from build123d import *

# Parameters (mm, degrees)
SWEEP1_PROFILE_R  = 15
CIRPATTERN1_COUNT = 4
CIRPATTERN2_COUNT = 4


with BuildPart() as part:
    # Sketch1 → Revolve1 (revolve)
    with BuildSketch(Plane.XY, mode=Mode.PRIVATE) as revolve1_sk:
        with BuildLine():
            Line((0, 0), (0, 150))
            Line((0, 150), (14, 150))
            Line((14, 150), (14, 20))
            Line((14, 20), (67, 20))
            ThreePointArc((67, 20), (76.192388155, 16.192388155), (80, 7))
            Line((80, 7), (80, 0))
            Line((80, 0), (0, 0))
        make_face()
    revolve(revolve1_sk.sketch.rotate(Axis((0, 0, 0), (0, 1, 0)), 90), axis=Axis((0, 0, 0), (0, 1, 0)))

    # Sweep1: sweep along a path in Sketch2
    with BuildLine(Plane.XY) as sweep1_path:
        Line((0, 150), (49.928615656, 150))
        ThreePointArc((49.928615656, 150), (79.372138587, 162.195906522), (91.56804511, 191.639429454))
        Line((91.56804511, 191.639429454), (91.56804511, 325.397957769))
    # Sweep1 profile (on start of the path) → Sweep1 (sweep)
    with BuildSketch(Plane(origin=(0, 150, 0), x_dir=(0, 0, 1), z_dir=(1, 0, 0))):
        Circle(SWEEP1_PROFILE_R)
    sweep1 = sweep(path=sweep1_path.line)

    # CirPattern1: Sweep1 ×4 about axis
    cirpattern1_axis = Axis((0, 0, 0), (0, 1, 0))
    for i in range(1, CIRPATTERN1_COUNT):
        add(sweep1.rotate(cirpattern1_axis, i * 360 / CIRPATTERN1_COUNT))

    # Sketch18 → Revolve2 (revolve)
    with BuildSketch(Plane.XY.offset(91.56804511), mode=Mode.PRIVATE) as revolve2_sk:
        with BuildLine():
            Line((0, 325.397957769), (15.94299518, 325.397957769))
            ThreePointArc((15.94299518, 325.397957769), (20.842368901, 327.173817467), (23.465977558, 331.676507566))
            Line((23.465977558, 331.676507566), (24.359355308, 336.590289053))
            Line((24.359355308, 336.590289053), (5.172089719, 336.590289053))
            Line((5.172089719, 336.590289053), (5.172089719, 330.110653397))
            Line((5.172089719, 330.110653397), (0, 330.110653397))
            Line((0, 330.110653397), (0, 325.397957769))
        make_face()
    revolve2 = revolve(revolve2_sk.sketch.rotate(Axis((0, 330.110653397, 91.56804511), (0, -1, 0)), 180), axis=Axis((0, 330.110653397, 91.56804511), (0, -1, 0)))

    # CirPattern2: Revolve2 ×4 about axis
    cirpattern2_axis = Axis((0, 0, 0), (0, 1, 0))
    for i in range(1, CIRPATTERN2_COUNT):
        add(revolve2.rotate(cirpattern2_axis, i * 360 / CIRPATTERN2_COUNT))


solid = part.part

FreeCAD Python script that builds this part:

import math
import FreeCAD as App
import Part
import Sketcher

V = App.Vector
Q = App.Units.Quantity

doc = App.newDocument("Part")
body = doc.addObject("PartDesign::Body", "Body")

sketch1 = body.newObject("Sketcher::SketchObject", "Sketch")
sketch1.AttachmentSupport = (doc.getObject("XY_Plane"), [""])
sketch1.MapMode = "FlatFace"
sketch1.addGeometry(Part.LineSegment(V(0, 150, 0), V(0, 0, 0)), False)
sketch1.addGeometry(Part.LineSegment(V(0, 0, 0), V(80, 0, 0)), False)
sketch1.addGeometry(Part.LineSegment(V(80, 0, 0), V(80, 7, 0)), False)
sketch1.addGeometry(Part.ArcOfCircle(Part.Circle(V(67, 7, 0), V(0, 0, 1), 13), math.radians(0), math.radians(90)), False)
sketch1.addGeometry(Part.LineSegment(V(67, 20, 0), V(14, 20, 0)), False)
sketch1.addGeometry(Part.LineSegment(V(14, 20, 0), V(14, 150, 0)), False)
sketch1.addGeometry(Part.LineSegment(V(14, 150, 0), V(0, 150, 0)), False)
sketch1.addConstraint(Sketcher.Constraint("Coincident", 0, 2, 1, 1))
sketch1.addConstraint(Sketcher.Constraint("Coincident", 1, 2, 2, 1))
sketch1.addConstraint(Sketcher.Constraint("Tangent", 2, 2, 3, 1))
sketch1.addConstraint(Sketcher.Constraint("Tangent", 3, 2, 4, 1))
sketch1.addConstraint(Sketcher.Constraint("Coincident", 4, 2, 5, 1))
sketch1.addConstraint(Sketcher.Constraint("Coincident", 5, 2, 6, 1))
sketch1.addConstraint(Sketcher.Constraint("Coincident", 6, 2, 0, 1))
sketch1.addConstraint(Sketcher.Constraint("Vertical", 0))
sketch1.addConstraint(Sketcher.Constraint("Horizontal", 1))
sketch1.addConstraint(Sketcher.Constraint("Vertical", 2))
sketch1.addConstraint(Sketcher.Constraint("Horizontal", 4))
sketch1.addConstraint(Sketcher.Constraint("Vertical", 5))
sketch1.addConstraint(Sketcher.Constraint("Horizontal", 6))
sketch1.addConstraint(Sketcher.Constraint("Coincident", 0, 2, -1, 1))
sketch1.addConstraint(Sketcher.Constraint("Radius", 3, Q("13 mm")))
sketch1.addConstraint(Sketcher.Constraint("DistanceX", 1, 1, 1, 2, Q("80 mm")))
sketch1.addConstraint(Sketcher.Constraint("DistanceX", 4, 2, 4, 1, Q("53 mm")))
sketch1.addConstraint(Sketcher.Constraint("DistanceY", 0, 2, 0, 1, Q("150 mm")))
sketch1.addConstraint(Sketcher.Constraint("DistanceY", 2, 1, 2, 2, Q("7 mm")))
revolution = body.newObject("PartDesign::Revolution", "Revolution")
revolution.Profile = sketch1
revolution.ReferenceAxis = (sketch1, ["V_Axis"])
revolution.Angle = 360

sketch2 = body.newObject("Sketcher::SketchObject", "Sketch001")
sketch2.AttachmentSupport = (doc.getObject("YZ_Plane"), [""])
sketch2.MapMode = "FlatFace"
sketch2.addGeometry(Part.Circle(V(150, 0, 0), V(0, 0, 1), 15), False)
sketch2.addConstraint(Sketcher.Constraint("PointOnObject", 0, 3, -1))
sketch2.addConstraint(Sketcher.Constraint("Diameter", 0, Q("30 mm")))
sketch2.addConstraint(Sketcher.Constraint("DistanceX", -1, 1, 0, 3, Q("150 mm")))

sketch3 = body.newObject("Sketcher::SketchObject", "Sketch002")
sketch3.AttachmentSupport = (doc.getObject("XY_Plane"), [""])
sketch3.MapMode = "FlatFace"
sketch3.addGeometry(Part.LineSegment(V(0, 150, 0), V(49.928616, 150, 0)), False)
sketch3.addGeometry(Part.ArcOfCircle(Part.Circle(V(49.928616, 191.639429, 0), V(0, 0, 1), 41.639429), math.radians(-90), math.radians(0)), False)
sketch3.addGeometry(Part.LineSegment(V(91.568045, 191.639429, 0), V(91.568045, 325.397958, 0)), False)
sketch3.addConstraint(Sketcher.Constraint("Tangent", 0, 2, 1, 1))
sketch3.addConstraint(Sketcher.Constraint("Tangent", 1, 2, 2, 1))
sketch3.addConstraint(Sketcher.Constraint("Horizontal", 0))
sketch3.addConstraint(Sketcher.Constraint("Vertical", 2))
sketch3.addConstraint(Sketcher.Constraint("PointOnObject", 0, 1, -2))
sketch3.addConstraint(Sketcher.Constraint("DistanceY", -1, 1, 0, 1, Q("150 mm")))
sketch3.addConstraint(Sketcher.Constraint("Radius", 1, Q("41.639429 mm")))
sketch3.addConstraint(Sketcher.Constraint("DistanceY", 2, 1, 2, 2, Q("133.758528 mm")))
sketch3.addConstraint(Sketcher.Constraint("DistanceX", 0, 1, 0, 2, Q("49.928616 mm")))
doc.recompute()

additivepipe = body.newObject("PartDesign::AdditivePipe", "AdditivePipe")
additivepipe.Profile = sketch2
additivepipe.Spine = (sketch3, ["Edge1", "Edge2", "Edge3"])
doc.recompute()

polarpattern = body.newObject("PartDesign::PolarPattern", "PolarPattern")
polarpattern.Originals = [additivepipe]
polarpattern.Axis = (doc.getObject("Y_Axis"), [""])
polarpattern.Angle = 360
polarpattern.Occurrences = 4
body.Tip = polarpattern

sketch4 = body.newObject("Sketcher::SketchObject", "Sketch003")
sketch4.AttachmentSupport = (doc.getObject("XY_Plane"), [""])
sketch4.MapMode = "FlatFace"
sketch4.AttachmentOffset = App.Placement(V(0, 0, 91.568045), App.Rotation())
sketch4.addGeometry(Part.LineSegment(V(0, 325.397958, 0), V(15.942995, 325.397958, 0)), False)
sketch4.addGeometry(Part.ArcOfCircle(Part.Circle(V(15.942995, 333.044266, 0), V(0, 0, 1), 7.646308), math.radians(-90), math.radians(-10.304428)), False)
sketch4.addGeometry(Part.LineSegment(V(23.465978, 331.676508, 0), V(24.359355, 336.590289, 0)), False)
sketch4.addGeometry(Part.LineSegment(V(24.359355, 336.590289, 0), V(5.17209, 336.590289, 0)), False)
sketch4.addGeometry(Part.LineSegment(V(5.17209, 336.590289, 0), V(5.17209, 330.110653, 0)), False)
sketch4.addGeometry(Part.LineSegment(V(5.17209, 330.110653, 0), V(0, 330.110653, 0)), False)
sketch4.addGeometry(Part.LineSegment(V(0, 330.110653, 0), V(0, 325.397958, 0)), False)
sketch4.addConstraint(Sketcher.Constraint("Tangent", 0, 2, 1, 1))
sketch4.addConstraint(Sketcher.Constraint("Tangent", 1, 2, 2, 1))
sketch4.addConstraint(Sketcher.Constraint("Coincident", 2, 2, 3, 1))
sketch4.addConstraint(Sketcher.Constraint("Coincident", 3, 2, 4, 1))
sketch4.addConstraint(Sketcher.Constraint("Coincident", 4, 2, 5, 1))
sketch4.addConstraint(Sketcher.Constraint("Coincident", 5, 2, 6, 1))
sketch4.addConstraint(Sketcher.Constraint("Coincident", 6, 2, 0, 1))
sketch4.addConstraint(Sketcher.Constraint("Horizontal", 0))
sketch4.addConstraint(Sketcher.Constraint("Horizontal", 3))
sketch4.addConstraint(Sketcher.Constraint("Vertical", 4))
sketch4.addConstraint(Sketcher.Constraint("Horizontal", 5))
sketch4.addConstraint(Sketcher.Constraint("Vertical", 6))
sketch4.addConstraint(Sketcher.Constraint("PointOnObject", 5, 2, -2))
sketch4.addConstraint(Sketcher.Constraint("Radius", 1, Q("7.646308 mm")))
sketch4.addConstraint(Sketcher.Constraint("DistanceX", 5, 2, 5, 1, Q("5.17209 mm")))
sketch4.addConstraint(Sketcher.Constraint("DistanceX", 0, 1, 0, 2, Q("15.942995 mm")))
sketch4.addConstraint(Sketcher.Constraint("DistanceX", 3, 2, 3, 1, Q("19.187266 mm")))
sketch4.addConstraint(Sketcher.Constraint("DistanceY", 4, 2, 4, 1, Q("6.479636 mm")))
sketch4.addConstraint(Sketcher.Constraint("DistanceY", 6, 2, 6, 1, Q("4.712696 mm")))
sketch4.addConstraint(Sketcher.Constraint("DistanceY", -1, 1, 2, 2, Q("336.590289 mm")))
revolution2 = body.newObject("PartDesign::Revolution", "Revolution001")
revolution2.Profile = sketch4
revolution2.ReferenceAxis = (sketch4, ["V_Axis"])
revolution2.Angle = 360
doc.recompute()

polarpattern2 = body.newObject("PartDesign::PolarPattern", "PolarPattern001")
polarpattern2.Originals = [revolution2]
polarpattern2.Axis = (doc.getObject("Y_Axis"), [""])
polarpattern2.Angle = 360
polarpattern2.Occurrences = 4
body.Tip = polarpattern2

doc.recompute()
